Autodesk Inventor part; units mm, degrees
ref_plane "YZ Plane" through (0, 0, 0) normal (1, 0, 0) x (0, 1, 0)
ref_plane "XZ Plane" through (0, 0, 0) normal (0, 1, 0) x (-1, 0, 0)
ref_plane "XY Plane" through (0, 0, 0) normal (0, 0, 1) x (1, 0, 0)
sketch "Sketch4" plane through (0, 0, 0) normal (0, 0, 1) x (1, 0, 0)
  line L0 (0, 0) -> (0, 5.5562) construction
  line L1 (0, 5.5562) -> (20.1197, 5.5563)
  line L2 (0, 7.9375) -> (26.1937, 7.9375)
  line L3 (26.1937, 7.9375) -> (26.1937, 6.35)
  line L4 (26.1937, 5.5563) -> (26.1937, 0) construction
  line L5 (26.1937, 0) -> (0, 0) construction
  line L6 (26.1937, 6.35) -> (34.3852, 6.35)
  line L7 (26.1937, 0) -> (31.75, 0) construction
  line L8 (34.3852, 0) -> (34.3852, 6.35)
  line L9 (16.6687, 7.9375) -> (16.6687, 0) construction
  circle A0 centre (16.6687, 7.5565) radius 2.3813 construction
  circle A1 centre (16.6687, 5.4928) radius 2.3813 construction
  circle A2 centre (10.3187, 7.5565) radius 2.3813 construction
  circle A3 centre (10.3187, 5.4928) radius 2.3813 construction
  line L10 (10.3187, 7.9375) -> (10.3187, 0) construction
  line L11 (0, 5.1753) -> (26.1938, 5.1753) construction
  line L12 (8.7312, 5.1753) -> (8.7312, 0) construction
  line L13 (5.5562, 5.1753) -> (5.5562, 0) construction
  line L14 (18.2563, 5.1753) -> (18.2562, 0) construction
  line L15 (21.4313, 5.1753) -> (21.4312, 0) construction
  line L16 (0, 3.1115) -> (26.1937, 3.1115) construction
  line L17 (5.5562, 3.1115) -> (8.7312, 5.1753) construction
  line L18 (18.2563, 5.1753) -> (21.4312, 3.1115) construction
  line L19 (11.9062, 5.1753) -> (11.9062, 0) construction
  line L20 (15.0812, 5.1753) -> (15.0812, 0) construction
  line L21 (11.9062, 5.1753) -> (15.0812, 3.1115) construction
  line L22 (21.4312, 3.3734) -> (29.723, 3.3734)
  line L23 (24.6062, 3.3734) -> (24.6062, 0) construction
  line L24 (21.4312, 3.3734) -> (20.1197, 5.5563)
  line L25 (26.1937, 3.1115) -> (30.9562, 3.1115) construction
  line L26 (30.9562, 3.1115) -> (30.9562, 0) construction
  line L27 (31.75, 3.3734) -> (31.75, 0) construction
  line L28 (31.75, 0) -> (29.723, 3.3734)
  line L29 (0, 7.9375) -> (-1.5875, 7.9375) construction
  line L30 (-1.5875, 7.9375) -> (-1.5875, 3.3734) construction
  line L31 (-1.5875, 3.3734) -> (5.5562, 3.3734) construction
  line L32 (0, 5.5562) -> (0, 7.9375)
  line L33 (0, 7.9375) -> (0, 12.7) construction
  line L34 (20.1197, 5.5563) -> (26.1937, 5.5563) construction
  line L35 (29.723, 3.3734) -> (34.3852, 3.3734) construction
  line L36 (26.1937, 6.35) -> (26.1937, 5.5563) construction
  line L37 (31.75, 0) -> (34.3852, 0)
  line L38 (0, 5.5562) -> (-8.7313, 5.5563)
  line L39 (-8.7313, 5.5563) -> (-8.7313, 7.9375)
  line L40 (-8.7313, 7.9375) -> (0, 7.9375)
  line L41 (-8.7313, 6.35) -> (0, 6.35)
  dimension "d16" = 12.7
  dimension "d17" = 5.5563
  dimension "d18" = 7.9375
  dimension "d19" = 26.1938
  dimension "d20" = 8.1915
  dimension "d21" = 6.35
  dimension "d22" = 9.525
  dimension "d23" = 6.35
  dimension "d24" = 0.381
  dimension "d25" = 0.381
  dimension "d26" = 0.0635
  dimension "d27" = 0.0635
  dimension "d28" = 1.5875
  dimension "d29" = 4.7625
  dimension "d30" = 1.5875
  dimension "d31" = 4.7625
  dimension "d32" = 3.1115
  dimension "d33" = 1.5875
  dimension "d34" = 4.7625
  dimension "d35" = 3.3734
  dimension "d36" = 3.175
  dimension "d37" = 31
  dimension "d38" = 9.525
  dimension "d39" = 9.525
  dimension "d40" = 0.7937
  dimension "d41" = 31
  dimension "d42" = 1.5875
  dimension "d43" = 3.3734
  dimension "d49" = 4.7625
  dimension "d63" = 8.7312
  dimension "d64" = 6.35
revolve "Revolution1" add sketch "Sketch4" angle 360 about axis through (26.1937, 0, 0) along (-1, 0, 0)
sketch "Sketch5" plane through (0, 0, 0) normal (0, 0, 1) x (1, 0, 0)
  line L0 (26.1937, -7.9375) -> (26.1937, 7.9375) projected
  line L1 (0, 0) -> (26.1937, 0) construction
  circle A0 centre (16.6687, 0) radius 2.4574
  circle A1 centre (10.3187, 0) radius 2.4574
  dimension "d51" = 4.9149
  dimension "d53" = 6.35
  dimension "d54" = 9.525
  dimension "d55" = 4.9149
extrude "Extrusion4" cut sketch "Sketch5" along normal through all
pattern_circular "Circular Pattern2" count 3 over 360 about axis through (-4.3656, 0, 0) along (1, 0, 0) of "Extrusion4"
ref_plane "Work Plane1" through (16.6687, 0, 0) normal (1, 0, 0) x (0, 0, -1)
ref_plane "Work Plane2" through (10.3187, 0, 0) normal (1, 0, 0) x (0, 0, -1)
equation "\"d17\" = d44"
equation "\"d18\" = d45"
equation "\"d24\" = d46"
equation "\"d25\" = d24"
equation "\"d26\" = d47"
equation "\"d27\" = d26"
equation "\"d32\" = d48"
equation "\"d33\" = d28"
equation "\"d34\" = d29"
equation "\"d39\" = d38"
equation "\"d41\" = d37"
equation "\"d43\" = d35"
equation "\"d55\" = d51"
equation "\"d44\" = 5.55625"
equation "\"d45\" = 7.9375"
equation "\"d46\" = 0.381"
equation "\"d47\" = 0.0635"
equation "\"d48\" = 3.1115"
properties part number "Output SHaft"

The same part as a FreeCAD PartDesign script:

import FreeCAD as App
import Part
import Sketcher

V = App.Vector
Q = App.Units.Quantity

doc = App.newDocument("Part")
body = doc.addObject("PartDesign::Body", "Body")

sketch1 = body.newObject("Sketcher::SketchObject", "Sketch")
sketch1.AttachmentSupport = (doc.getObject("XY_Plane"), [""])
sketch1.MapMode = "FlatFace"
sketch1.addGeometry([
    Part.LineSegment(V(26.2, 7.9, 0), V(-8.7, 7.9, 0)),
    Part.LineSegment(V(-8.7, 7.9, 0), V(-8.7, 5.6, 0)),
    Part.LineSegment(V(-8.7, 5.6, 0), V(0, 5.6, 0)),
    Part.LineSegment(V(0, 5.6, 0), V(20.1, 5.6, 0)),
    Part.LineSegment(V(20.1, 5.6, 0), V(21.4, 3.4, 0)),
    Part.LineSegment(V(21.4, 3.4, 0), V(29.7, 3.4, 0)),
    Part.LineSegment(V(29.7, 3.4, 0), V(31.8, 0, 0)),
    Part.LineSegment(V(31.8, 0, 0), V(34.4, 0, 0)),
    Part.LineSegment(V(34.4, 0, 0), V(34.4, 6.3, 0)),
    Part.LineSegment(V(34.4, 6.3, 0), V(26.2, 6.3, 0)),
    Part.LineSegment(V(26.2, 6.3, 0), V(26.2, 7.9, 0)),
], False)
sketch1.addConstraint([
    Sketcher.Constraint("Coincident", 0, 2, 1, 1),
    Sketcher.Constraint("Coincident", 1, 2, 2, 1),
    Sketcher.Constraint("Coincident", 2, 2, 3, 1),
    Sketcher.Constraint("Coincident", 3, 2, 4, 1),
    Sketcher.Constraint("Coincident", 4, 2, 5, 1),
    Sketcher.Constraint("Coincident", 5, 2, 6, 1),
    Sketcher.Constraint("Coincident", 6, 2, 7, 1),
    Sketcher.Constraint("Coincident", 7, 2, 8, 1),
    Sketcher.Constraint("Coincident", 8, 2, 9, 1),
    Sketcher.Constraint("Coincident", 9, 2, 10, 1),
    Sketcher.Constraint("Coincident", 10, 2, 0, 1),
    Sketcher.Constraint("Horizontal", 0),
    Sketcher.Constraint("Vertical", 1),
    Sketcher.Constraint("Horizontal", 2),
    Sketcher.Constraint("Horizontal", 3),
    Sketcher.Constraint("Horizontal", 5),
    Sketcher.Constraint("Horizontal", 7),
    Sketcher.Constraint("Vertical", 8),
    Sketcher.Constraint("Horizontal", 9),
    Sketcher.Constraint("Vertical", 10),
    Sketcher.Constraint("PointOnObject", 2, 2, -2),
    Sketcher.Constraint("PointOnObject", 6, 2, -1),
    Sketcher.Constraint("Parallel", 4, 6),
    Sketcher.Constraint("DistanceY", 8, 1, 8, 2, Q("0.25 in")),
    Sketcher.Constraint("DistanceX", 2, 1, 2, 2, Q("0.343752 in")),
    Sketcher.Constraint("DistanceY", 10, 1, 10, 2, Q("0.0625 in")),
    Sketcher.Constraint("DistanceX", 9, 2, 9, 1, Q("0.3225 in")),
    Sketcher.Constraint("DistanceY", -1, 1, 1, 2, Q("0.218752 in")),
    Sketcher.Constraint("DistanceX", -1, 1, 9, 2, Q("1.031248 in")),
    Sketcher.Constraint("Angle", 6, Q("-58.9993 deg")),
    Sketcher.Constraint("DistanceX", 4, 2, 9, 2, Q("0.1875 in")),
    Sketcher.Constraint("DistanceX", 9, 2, 6, 2, Q("0.218752 in")),
    Sketcher.Constraint("DistanceY", -1, 1, 4, 2, Q("0.1328 in")),
])
revolution = body.newObject("PartDesign::Revolution", "Revolution")
revolution.Profile = sketch1
revolution.ReferenceAxis = (sketch1, ["H_Axis"])
revolution.Angle = 360

sketch2 = body.newObject("Sketcher::SketchObject", "Sketch001")
sketch2.AttachmentSupport = (doc.getObject("XY_Plane"), [""])
sketch2.MapMode = "FlatFace"
sketch2.addGeometry([
    Part.Circle(V(16.7, 0, 0), V(0, 0, 1), 2.5),
    Part.Circle(V(10.3, 0, 0), V(0, 0, 1), 2.5),
], False)
sketch2.addConstraint([
    Sketcher.Constraint("Equal", 0, 1),
    Sketcher.Constraint("PointOnObject", 0, 3, -1),
    Sketcher.Constraint("PointOnObject", 1, 3, -1),
    Sketcher.Constraint("Diameter", 0, Q("0.1935 in")),
    Sketcher.Constraint("DistanceX", 1, 3, 0, 3, Q("0.25 in")),
    Sketcher.Constraint("DistanceX", -1, 1, 0, 3, Q("0.656248 in")),
])
pocket1 = body.newObject("PartDesign::Pocket", "Pocket")
pocket1.Profile = sketch2
pocket1.Type = "ThroughAll"
pocket1.Reversed = True
doc.recompute()

polarpattern = body.newObject("PartDesign::PolarPattern", "PolarPattern")
polarpattern.Originals = [pocket1]
polarpattern.Axis = (doc.getObject("X_Axis"), [""])
polarpattern.Angle = 360
polarpattern.Occurrences = 3
body.Tip = polarpattern

doc.recompute()
